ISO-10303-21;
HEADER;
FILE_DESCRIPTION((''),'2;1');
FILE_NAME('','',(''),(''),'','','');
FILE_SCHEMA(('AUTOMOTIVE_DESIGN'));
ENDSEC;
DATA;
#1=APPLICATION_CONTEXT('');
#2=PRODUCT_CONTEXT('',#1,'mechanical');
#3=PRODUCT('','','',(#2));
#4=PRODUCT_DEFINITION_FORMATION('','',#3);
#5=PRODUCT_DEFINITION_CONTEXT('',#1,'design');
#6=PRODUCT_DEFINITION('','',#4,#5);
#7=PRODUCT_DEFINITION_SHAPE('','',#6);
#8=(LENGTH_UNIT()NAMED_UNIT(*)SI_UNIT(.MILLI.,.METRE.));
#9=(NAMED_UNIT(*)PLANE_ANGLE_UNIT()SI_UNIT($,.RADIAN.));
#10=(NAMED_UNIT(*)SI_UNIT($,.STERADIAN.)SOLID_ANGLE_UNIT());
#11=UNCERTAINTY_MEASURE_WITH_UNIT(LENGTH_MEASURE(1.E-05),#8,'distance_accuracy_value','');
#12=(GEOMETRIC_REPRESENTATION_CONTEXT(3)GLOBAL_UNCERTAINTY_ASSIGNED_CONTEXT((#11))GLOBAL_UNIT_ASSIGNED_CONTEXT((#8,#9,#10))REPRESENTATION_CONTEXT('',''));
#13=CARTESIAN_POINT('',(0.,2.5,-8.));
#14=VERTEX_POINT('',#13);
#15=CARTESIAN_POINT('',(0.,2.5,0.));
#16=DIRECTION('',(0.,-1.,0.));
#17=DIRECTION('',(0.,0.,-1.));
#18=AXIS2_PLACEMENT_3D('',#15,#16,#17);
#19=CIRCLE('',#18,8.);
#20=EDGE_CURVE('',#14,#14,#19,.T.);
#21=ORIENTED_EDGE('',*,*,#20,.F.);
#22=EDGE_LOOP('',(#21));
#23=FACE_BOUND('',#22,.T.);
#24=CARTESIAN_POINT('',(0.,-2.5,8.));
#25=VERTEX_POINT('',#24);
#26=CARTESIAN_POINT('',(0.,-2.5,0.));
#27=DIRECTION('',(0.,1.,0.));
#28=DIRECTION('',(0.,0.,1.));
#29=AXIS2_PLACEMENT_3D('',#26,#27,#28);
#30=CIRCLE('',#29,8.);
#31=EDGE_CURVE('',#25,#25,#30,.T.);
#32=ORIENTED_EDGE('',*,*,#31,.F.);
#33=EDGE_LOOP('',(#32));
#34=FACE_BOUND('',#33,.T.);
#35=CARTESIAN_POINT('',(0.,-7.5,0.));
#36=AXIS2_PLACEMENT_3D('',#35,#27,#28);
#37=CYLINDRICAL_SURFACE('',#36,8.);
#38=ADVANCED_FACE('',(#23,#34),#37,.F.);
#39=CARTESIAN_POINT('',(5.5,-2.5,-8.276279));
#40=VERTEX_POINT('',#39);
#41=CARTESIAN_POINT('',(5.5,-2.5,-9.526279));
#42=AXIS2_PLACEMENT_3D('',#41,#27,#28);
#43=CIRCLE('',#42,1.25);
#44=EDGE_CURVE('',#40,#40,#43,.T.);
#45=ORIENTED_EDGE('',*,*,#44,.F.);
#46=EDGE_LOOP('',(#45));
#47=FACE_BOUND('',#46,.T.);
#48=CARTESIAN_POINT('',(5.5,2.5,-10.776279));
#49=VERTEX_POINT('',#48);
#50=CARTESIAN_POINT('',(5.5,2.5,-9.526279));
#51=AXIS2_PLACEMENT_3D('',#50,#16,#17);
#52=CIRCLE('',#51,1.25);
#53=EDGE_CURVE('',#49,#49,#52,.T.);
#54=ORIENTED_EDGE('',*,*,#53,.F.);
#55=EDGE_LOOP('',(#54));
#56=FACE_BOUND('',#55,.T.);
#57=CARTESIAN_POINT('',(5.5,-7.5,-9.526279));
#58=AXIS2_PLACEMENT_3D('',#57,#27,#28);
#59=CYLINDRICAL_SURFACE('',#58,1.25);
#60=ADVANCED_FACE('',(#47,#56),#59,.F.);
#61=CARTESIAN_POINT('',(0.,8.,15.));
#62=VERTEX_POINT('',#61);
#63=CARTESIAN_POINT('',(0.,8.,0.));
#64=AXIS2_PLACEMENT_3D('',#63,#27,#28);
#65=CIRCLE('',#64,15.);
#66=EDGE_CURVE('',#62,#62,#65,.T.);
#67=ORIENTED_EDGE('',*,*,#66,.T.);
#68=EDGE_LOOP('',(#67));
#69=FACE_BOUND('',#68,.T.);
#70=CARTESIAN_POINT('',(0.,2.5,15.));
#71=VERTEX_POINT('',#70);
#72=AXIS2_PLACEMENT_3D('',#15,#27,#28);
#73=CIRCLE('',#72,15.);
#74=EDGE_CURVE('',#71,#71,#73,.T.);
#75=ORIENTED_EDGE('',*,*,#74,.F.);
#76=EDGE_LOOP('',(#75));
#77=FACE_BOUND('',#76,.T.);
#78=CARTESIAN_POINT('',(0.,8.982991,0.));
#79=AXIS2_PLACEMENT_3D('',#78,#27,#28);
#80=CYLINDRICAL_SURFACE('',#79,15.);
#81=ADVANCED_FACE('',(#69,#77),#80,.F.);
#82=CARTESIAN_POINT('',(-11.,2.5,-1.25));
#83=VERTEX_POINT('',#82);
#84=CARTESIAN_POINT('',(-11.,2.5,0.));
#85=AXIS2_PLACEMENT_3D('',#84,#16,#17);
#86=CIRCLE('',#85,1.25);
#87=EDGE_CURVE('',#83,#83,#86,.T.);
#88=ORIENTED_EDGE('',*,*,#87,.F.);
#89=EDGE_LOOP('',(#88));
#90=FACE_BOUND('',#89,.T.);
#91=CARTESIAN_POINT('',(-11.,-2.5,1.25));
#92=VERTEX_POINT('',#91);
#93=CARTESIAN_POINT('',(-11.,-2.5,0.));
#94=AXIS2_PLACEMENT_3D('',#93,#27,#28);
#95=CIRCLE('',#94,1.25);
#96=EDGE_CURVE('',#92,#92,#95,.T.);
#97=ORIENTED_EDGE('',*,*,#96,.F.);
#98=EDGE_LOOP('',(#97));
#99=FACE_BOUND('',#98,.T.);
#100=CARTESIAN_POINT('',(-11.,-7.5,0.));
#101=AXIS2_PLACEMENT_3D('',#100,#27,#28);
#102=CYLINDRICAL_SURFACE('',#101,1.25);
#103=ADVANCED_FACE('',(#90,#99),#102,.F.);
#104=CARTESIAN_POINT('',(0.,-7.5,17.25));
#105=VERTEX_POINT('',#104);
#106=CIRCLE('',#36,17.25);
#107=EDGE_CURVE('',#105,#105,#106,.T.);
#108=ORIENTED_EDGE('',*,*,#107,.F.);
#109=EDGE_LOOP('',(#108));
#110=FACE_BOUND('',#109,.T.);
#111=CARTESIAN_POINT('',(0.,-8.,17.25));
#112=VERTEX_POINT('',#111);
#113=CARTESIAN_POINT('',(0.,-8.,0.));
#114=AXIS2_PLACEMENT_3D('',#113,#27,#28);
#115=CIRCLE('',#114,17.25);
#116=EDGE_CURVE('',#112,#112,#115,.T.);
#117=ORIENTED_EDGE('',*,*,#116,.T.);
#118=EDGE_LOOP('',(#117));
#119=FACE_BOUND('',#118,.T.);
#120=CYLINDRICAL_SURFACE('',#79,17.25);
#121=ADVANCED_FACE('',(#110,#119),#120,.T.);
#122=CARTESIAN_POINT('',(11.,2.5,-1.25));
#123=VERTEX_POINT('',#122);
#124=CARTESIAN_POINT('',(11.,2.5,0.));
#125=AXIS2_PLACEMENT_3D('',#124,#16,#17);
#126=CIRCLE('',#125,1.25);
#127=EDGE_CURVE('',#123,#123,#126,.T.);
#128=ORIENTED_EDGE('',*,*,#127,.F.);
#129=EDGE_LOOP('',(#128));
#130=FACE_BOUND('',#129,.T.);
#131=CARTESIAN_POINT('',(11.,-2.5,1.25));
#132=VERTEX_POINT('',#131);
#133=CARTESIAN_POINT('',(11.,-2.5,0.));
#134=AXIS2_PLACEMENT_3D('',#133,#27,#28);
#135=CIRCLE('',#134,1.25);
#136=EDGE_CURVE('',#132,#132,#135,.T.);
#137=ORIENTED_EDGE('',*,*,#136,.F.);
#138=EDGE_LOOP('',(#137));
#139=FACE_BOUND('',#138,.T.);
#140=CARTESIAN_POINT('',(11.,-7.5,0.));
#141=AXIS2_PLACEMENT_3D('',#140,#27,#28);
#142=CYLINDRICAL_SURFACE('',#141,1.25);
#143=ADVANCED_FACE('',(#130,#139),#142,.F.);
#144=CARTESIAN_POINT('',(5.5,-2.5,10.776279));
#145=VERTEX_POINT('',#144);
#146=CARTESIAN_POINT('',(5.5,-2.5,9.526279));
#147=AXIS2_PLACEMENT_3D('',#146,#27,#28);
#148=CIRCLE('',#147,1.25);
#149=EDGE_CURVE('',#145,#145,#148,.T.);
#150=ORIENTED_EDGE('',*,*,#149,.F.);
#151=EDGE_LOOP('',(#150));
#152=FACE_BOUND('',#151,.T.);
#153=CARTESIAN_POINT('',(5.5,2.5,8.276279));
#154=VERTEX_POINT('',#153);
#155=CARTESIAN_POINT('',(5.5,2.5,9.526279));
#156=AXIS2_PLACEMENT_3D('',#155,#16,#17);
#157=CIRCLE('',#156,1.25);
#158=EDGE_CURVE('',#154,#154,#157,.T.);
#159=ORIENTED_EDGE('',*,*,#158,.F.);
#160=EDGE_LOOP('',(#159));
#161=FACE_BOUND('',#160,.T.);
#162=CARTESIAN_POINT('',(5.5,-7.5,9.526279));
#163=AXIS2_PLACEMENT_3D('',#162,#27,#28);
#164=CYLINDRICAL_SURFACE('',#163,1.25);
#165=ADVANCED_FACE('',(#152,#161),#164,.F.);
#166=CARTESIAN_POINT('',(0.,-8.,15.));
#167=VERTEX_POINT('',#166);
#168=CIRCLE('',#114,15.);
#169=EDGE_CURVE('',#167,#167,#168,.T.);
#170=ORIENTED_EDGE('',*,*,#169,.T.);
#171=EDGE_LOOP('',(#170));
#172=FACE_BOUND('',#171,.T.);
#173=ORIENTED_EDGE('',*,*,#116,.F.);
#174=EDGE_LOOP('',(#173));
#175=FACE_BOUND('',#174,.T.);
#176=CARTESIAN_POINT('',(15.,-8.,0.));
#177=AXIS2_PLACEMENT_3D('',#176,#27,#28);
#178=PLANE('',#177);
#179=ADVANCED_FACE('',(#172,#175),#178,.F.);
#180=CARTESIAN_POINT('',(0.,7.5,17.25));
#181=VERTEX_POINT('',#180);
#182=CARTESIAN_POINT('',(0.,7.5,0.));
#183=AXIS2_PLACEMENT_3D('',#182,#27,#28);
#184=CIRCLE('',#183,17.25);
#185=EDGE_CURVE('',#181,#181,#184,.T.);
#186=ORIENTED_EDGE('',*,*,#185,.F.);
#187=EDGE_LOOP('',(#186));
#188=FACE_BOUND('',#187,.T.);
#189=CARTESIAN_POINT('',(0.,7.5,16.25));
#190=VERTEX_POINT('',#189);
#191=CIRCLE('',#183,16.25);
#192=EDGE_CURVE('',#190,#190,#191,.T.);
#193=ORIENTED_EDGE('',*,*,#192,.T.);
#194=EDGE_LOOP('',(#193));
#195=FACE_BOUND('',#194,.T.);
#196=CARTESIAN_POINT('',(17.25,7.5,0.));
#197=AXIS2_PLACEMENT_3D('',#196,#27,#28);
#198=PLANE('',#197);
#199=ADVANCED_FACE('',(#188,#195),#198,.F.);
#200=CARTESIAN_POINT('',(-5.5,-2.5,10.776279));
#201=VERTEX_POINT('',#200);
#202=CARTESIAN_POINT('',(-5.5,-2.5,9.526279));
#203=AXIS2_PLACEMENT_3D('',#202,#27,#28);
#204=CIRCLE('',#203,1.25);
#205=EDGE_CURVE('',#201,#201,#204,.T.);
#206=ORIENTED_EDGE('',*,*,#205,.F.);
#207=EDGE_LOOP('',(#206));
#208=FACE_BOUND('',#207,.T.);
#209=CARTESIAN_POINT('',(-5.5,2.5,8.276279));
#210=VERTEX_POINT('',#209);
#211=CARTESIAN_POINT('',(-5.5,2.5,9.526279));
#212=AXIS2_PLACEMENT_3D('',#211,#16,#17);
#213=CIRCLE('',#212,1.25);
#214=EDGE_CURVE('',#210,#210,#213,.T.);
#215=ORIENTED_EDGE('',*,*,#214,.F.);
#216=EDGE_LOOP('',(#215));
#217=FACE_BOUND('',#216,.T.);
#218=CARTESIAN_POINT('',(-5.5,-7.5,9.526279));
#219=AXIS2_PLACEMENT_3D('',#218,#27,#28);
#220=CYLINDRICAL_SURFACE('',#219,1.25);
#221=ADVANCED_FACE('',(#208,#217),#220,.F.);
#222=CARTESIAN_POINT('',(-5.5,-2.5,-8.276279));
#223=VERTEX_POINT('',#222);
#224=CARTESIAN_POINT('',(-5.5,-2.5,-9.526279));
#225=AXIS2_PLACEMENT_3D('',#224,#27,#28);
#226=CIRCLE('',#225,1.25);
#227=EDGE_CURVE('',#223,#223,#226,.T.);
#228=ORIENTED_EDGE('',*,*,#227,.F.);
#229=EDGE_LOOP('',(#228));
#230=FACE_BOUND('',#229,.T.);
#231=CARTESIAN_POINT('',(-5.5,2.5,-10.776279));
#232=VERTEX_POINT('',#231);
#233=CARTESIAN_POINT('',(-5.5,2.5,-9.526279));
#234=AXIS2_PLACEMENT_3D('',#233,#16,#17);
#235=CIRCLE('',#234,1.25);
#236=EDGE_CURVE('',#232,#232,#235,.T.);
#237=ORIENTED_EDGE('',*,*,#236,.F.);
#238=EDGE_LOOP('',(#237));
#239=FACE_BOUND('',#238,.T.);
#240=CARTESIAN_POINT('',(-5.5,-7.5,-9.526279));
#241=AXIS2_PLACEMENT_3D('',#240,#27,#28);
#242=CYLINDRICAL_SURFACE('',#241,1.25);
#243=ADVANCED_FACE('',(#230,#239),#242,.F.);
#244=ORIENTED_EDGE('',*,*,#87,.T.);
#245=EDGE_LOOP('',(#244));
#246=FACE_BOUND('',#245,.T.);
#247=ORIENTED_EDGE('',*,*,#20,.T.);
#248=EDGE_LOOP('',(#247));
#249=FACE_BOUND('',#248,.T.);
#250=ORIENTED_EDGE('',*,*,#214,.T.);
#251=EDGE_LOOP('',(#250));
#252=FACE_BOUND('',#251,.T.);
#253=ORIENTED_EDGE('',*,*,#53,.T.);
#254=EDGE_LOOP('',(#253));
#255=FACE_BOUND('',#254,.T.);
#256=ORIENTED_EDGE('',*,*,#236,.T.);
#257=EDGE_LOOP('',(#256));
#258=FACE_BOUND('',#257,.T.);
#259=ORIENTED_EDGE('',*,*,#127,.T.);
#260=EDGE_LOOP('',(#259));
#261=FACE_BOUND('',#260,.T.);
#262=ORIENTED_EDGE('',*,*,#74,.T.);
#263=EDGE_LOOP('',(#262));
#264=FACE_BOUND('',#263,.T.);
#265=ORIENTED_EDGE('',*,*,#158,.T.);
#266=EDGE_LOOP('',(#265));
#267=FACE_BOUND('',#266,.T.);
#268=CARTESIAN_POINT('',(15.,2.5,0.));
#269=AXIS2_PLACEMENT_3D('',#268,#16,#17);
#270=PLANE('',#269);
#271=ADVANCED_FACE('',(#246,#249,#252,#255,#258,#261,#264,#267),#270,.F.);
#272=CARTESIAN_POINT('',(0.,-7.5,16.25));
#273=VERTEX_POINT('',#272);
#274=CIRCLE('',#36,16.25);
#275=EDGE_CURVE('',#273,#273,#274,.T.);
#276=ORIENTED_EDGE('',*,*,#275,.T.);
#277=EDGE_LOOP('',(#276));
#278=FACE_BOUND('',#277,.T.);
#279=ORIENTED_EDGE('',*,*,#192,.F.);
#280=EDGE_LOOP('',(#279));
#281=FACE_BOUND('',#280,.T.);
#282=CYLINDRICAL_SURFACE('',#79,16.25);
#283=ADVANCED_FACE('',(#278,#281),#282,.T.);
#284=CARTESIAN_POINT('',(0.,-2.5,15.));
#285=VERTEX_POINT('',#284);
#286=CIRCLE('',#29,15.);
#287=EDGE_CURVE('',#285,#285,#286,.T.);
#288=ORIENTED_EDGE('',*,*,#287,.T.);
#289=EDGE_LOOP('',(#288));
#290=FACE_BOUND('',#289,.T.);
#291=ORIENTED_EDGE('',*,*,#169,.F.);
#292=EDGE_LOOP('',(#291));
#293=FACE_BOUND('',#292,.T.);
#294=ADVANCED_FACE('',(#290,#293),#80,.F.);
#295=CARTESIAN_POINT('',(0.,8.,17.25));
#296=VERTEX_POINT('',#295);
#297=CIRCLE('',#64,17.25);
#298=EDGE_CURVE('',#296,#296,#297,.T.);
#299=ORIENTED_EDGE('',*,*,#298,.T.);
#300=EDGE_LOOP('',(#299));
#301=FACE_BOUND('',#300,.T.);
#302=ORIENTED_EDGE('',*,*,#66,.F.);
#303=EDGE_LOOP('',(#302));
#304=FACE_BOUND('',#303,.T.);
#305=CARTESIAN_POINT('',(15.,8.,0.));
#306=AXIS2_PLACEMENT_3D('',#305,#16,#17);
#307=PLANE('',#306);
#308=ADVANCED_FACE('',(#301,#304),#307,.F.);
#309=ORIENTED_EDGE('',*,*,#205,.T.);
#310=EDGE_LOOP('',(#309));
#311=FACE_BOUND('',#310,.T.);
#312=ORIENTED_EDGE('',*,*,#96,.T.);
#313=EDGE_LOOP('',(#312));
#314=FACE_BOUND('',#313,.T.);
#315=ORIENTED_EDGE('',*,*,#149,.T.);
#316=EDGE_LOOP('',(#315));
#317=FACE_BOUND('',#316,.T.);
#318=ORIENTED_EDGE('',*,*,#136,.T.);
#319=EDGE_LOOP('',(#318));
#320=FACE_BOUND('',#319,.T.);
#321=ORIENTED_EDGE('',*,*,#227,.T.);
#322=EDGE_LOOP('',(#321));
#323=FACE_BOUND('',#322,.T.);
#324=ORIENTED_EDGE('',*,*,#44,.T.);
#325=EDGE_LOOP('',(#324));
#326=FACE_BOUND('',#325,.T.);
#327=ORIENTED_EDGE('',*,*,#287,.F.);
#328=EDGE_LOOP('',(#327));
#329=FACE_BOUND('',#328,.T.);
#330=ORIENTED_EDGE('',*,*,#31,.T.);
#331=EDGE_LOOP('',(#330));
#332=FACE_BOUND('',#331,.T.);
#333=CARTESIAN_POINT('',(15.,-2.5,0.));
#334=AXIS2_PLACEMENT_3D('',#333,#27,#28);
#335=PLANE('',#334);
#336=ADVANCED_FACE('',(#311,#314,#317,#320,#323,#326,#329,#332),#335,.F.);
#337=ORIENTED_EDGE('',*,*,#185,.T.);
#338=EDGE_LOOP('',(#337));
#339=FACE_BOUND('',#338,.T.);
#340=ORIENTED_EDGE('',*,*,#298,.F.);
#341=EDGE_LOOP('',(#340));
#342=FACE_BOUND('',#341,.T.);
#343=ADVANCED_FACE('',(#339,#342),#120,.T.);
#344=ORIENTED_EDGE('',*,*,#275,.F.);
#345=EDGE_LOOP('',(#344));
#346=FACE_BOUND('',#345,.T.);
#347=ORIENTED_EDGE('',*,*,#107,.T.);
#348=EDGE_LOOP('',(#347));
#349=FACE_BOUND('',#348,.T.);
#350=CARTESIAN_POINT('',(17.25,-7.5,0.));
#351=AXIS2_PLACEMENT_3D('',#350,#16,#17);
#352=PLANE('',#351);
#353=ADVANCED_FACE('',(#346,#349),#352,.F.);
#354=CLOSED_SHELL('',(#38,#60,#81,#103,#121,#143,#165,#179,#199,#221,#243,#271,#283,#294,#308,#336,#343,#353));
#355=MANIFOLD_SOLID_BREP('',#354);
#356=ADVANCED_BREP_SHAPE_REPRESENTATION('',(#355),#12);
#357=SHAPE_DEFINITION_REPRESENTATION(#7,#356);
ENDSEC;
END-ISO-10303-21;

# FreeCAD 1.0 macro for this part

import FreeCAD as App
import Part
import Sketcher

V = App.Vector
Q = App.Units.Quantity


def add_polygon(sketch, points):
    """Adds a closed chain of lines whose ends are joined by coincident constraints."""
    first, n = sketch.GeometryCount, len(points)
    for a, b in zip(points, points[1:] + points[:1]):
        sketch.addGeometry(Part.LineSegment(App.Vector(*a, 0), App.Vector(*b, 0)), False)
    for i in range(n):
        sketch.addConstraint(Sketcher.Constraint("Coincident", first + i, 2, first + (i + 1) % n, 1))

doc = App.newDocument("Part")
params = doc.addObject("Spreadsheet::Sheet", "Params")
for row, (alias, value) in enumerate([
    ("sketch1_width", "15 mm"),
    ("sketch1_width2", "1 mm"),
    ("sketch1_height", "5 mm"),
    ("sketch1_height2", "5.5 mm"),
    ("sketch1_width3", "2.25 mm"),
    ("revolution_angle", "360 deg"),
    ("sketch2_diameter", "16 mm"),
    ("sketch2_diameter2", "2.5 mm"),
    ("pocket1_length", "20 mm"),
], start=1):
    params.set(f"A{row}", alias)
    params.set(f"B{row}", "=" + value)
    params.setAlias(f"B{row}", alias)

body = doc.addObject("PartDesign::Body", "Body")

# Sketch on XY plane
sketch1 = doc.addObject("Sketcher::SketchObject", "Sketch")
body.addObject(sketch1)
sketch1.AttachmentSupport = (doc.XY_Plane, [""])
sketch1.MapMode = "FlatFace"
add_polygon(sketch1, [(17.2, 8), (15, 8), (15, 2.5), (0, 2.5), (0, -2.5), (15, -2.5), (15, -8), (17.2, -8), (17.2, -7.5), (16.2, -7.5), (16.2, 7.5), (17.2, 7.5)])  # lines 0-11
sketch1.addConstraint([
    Sketcher.Constraint("Horizontal", 0),
    Sketcher.Constraint("Vertical", 1),
    Sketcher.Constraint("Horizontal", 2),
    Sketcher.Constraint("Vertical", 3),
    Sketcher.Constraint("Horizontal", 4),
    Sketcher.Constraint("Vertical", 5),
    Sketcher.Constraint("Horizontal", 6),
    Sketcher.Constraint("Vertical", 7),
    Sketcher.Constraint("Horizontal", 8),
    Sketcher.Constraint("Vertical", 9),
    Sketcher.Constraint("Horizontal", 10),
    Sketcher.Constraint("Vertical", 11),
    Sketcher.Constraint("Symmetric", 2, 2, 3, 2, -1, 1),
    Sketcher.Constraint("Symmetric", 0, 2, 5, 2, -1),
    Sketcher.Constraint("Symmetric", 7, 2, 10, 2, -1),
    Sketcher.Constraint("Equal", 4, 9),
    Sketcher.Constraint("DistanceX", 2, 2, 2, 1, Q("15 mm")),
    Sketcher.Constraint("DistanceX", 8, 2, 8, 1, Q("1 mm")),
    Sketcher.Constraint("DistanceY", 3, 2, 3, 1, Q("5 mm")),
    Sketcher.Constraint("DistanceY", 1, 2, 1, 1, Q("5.5 mm")),
    Sketcher.Constraint("DistanceX", 0, 2, 0, 1, Q("2.25 mm")),
])
sketch1.setExpression("Constraints[28]", "Params.sketch1_width")
sketch1.setExpression("Constraints[29]", "Params.sketch1_width2")
sketch1.setExpression("Constraints[30]", "Params.sketch1_height")
sketch1.setExpression("Constraints[31]", "Params.sketch1_height2")
sketch1.setExpression("Constraints[32]", "Params.sketch1_width3")
revolution = doc.addObject("PartDesign::Revolution", "Revolution")
body.addObject(revolution)
revolution.Profile = sketch1
revolution.ReferenceAxis = (sketch1, ["V_Axis"])
revolution.setExpression("Angle", "Params.revolution_angle")

# Sketch on XZ plane
sketch2 = doc.addObject("Sketcher::SketchObject", "Sketch001")
body.addObject(sketch2)
sketch2.AttachmentSupport = (doc.XZ_Plane, [""])
sketch2.MapMode = "FlatFace"
sketch2.AttachmentOffset = App.Placement(V(0, 0, -2.5), App.Rotation())
sketch2.addGeometry([
    Part.Circle(V(11, 0, 0), V(0, 0, 1), 1.2),  # 0
    Part.Circle(V(5.5, 9.5, 0), V(0, 0, 1), 1.2),  # 1
    Part.Circle(V(-5.5, 9.5, 0), V(0, 0, 1), 1.2),  # 2
    Part.Circle(V(-11, 0, 0), V(0, 0, 1), 1.2),  # 3
    Part.Circle(V(-5.5, -9.5, 0), V(0, 0, 1), 1.2),  # 4
    Part.Circle(V(5.5, -9.5, 0), V(0, 0, 1), 1.2),  # 5
    Part.Circle(V(0, 0, 0), V(0, 0, 1), 8),  # 6
], False)
sketch2.addConstraint([
    Sketcher.Constraint("Coincident", 6, 3, -1, 1),
    Sketcher.Constraint("Equal", 0, 1),
    Sketcher.Constraint("Equal", 1, 2),
    Sketcher.Constraint("Equal", 2, 3),
    Sketcher.Constraint("Equal", 3, 4),
    Sketcher.Constraint("Equal", 4, 5),
    Sketcher.Constraint("Symmetric", 0, 3, 3, 3, -1, 1),
    Sketcher.Constraint("Symmetric", 1, 3, 4, 3, -1, 1),
    Sketcher.Constraint("Symmetric", 2, 3, 5, 3, -1, 1),
    Sketcher.Constraint("Symmetric", 1, 3, 2, 3, -2),
    Sketcher.Constraint("PointOnObject", 0, 3, -1),
    Sketcher.Constraint("Diameter", 6, Q("16 mm")),
    Sketcher.Constraint("Diameter", 0, Q("2.5 mm")),
    Sketcher.Constraint("DistanceX", -1, 1, 0, 3, Q("11 mm")),
    Sketcher.Constraint("DistanceX", 2, 3, 1, 3, Q("11 mm")),
    Sketcher.Constraint("DistanceY", -1, 1, 1, 3, Q("9.526279 mm")),
])
sketch2.setExpression("Constraints[11]", "Params.sketch2_diameter")
sketch2.setExpression("Constraints[12]", "Params.sketch2_diameter2")
pocket1 = doc.addObject("PartDesign::Pocket", "Pocket")
body.addObject(pocket1)
pocket1.Profile = sketch2
pocket1.setExpression("Length", "Params.pocket1_length")
pocket1.Midplane = True

doc.recompute()
